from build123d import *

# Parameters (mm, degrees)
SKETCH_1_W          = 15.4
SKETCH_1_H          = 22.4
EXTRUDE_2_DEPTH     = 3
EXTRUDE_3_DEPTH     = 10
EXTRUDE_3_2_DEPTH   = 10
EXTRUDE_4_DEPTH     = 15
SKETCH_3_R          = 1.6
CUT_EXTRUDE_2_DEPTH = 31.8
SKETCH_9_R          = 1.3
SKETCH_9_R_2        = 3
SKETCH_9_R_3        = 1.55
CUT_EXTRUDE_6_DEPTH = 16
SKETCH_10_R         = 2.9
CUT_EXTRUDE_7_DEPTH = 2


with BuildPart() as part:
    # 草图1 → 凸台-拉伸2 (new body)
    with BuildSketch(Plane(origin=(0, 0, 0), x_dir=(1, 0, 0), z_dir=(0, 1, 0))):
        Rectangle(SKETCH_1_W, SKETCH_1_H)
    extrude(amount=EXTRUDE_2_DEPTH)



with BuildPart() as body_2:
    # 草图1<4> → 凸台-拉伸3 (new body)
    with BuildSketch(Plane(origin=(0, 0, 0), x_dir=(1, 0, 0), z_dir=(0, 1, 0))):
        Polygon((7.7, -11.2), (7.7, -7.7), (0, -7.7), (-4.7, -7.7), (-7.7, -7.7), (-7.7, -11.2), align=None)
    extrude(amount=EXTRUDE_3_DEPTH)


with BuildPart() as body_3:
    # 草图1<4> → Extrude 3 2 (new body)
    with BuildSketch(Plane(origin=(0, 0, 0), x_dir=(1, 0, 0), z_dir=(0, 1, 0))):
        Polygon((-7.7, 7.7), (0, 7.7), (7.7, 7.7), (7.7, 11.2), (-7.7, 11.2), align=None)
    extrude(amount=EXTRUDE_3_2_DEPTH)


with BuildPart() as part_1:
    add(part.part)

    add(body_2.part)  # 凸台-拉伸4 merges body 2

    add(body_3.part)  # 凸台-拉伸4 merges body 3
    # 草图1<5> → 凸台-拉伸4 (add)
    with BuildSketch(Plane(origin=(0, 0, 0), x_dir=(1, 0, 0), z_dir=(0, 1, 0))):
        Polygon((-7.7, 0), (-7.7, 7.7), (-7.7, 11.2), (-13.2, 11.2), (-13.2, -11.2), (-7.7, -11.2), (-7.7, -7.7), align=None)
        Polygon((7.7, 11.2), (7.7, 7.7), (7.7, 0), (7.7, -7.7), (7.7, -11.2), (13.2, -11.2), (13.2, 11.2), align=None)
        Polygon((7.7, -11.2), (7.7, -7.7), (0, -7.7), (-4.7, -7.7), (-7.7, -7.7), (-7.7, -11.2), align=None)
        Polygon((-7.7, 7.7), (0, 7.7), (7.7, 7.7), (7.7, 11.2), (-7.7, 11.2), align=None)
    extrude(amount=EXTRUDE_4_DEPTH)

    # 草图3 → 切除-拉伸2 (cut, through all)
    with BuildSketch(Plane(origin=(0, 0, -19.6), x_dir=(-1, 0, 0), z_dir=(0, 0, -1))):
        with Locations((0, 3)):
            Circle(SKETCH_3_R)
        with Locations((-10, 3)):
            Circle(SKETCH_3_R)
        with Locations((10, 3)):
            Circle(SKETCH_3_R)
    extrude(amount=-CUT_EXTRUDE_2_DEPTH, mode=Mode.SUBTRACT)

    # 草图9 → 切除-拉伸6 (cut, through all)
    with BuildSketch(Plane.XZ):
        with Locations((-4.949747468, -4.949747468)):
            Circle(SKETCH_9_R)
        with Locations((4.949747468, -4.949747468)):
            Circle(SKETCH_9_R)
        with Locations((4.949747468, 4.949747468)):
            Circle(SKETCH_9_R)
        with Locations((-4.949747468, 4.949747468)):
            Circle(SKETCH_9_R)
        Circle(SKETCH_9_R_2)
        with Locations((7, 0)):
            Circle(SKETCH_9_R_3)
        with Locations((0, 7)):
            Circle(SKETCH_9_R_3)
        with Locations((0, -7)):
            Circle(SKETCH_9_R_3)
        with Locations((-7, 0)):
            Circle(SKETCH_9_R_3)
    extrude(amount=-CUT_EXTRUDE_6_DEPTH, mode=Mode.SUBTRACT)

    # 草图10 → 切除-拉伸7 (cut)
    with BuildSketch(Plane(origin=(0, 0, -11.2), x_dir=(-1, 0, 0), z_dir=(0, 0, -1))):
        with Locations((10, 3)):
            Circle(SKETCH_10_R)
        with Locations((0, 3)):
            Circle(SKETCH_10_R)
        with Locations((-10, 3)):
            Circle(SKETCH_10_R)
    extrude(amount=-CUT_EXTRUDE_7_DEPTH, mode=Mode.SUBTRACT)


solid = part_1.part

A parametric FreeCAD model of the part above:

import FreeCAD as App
import Part
import Sketcher

doc = App.newDocument("Part")
body = doc.addObject("PartDesign::Body", "Body")

# Sketch on XZ plane
sketch1 = body.newObject("Sketcher::SketchObject", "Sketch")
sketch1.AttachmentSupport = (doc.getObject("XZ_Plane"), [""])
sketch1.MapMode = "FlatFace"
sketch1.addGeometry(Part.LineSegment(App.Vector(-8, -11, 0), App.Vector(-8, 11, 0)), False)
sketch1.addGeometry(Part.LineSegment(App.Vector(-8, 11, 0), App.Vector(8, 11, 0)), False)
sketch1.addGeometry(Part.LineSegment(App.Vector(8, 11, 0), App.Vector(8, -11, 0)), False)
sketch1.addGeometry(Part.LineSegment(App.Vector(8, -11, 0), App.Vector(-8, -11, 0)), False)
sketch1.addConstraint(Sketcher.Constraint("Coincident", 0, 2, 1, 1))
sketch1.addConstraint(Sketcher.Constraint("Coincident", 1, 2, 2, 1))
sketch1.addConstraint(Sketcher.Constraint("Coincident", 2, 2, 3, 1))
sketch1.addConstraint(Sketcher.Constraint("Coincident", 3, 2, 0, 1))
sketch1.addConstraint(Sketcher.Constraint("Vertical", 0))
sketch1.addConstraint(Sketcher.Constraint("Horizontal", 1))
sketch1.addConstraint(Sketcher.Constraint("Vertical", 2))
sketch1.addConstraint(Sketcher.Constraint("Horizontal", 3))
sketch1.addConstraint(Sketcher.Constraint("Symmetric", 0, 2, 2, 2, -1, 1))
sketch1.addConstraint(Sketcher.Constraint("DistanceX", 1, 1, 1, 2, 15.4))
sketch1.addConstraint(Sketcher.Constraint("DistanceY", 0, 1, 0, 2, 22.4))
pad1 = body.newObject("PartDesign::Pad", "Pad")
pad1.Profile = sketch1
pad1.Length = 3
pad1.Reversed = True
body2 = doc.addObject("PartDesign::Body", "Body001")

# Sketch on XZ plane
sketch2 = body2.newObject("Sketcher::SketchObject", "Sketch001")
sketch2.AttachmentSupport = (doc.getObject("XZ_Plane001"), [""])
sketch2.MapMode = "FlatFace"
sketch2.addGeometry(Part.LineSegment(App.Vector(7.7, 11.2, 0), App.Vector(7.7, 7.7, 0)), False)
sketch2.addGeometry(Part.LineSegment(App.Vector(7.7, 7.7, 0), App.Vector(-7.7, 7.7, 0)), False)
sketch2.addGeometry(Part.LineSegment(App.Vector(-7.7, 7.7, 0), App.Vector(-7.7, 11.2, 0)), False)
sketch2.addGeometry(Part.LineSegment(App.Vector(-7.7, 11.2, 0), App.Vector(7.7, 11.2, 0)), False)
sketch2.addConstraint(Sketcher.Constraint("Coincident", 0, 2, 1, 1))
sketch2.addConstraint(Sketcher.Constraint("Coincident", 1, 2, 2, 1))
sketch2.addConstraint(Sketcher.Constraint("Coincident", 2, 2, 3, 1))
sketch2.addConstraint(Sketcher.Constraint("Coincident", 3, 2, 0, 1))
sketch2.addConstraint(Sketcher.Constraint("Vertical", 0))
sketch2.addConstraint(Sketcher.Constraint("Horizontal", 1))
sketch2.addConstraint(Sketcher.Constraint("Vertical", 2))
sketch2.addConstraint(Sketcher.Constraint("Horizontal", 3))
sketch2.addConstraint(Sketcher.Constraint("DistanceX", 1, 2, 1, 1, 15.4))
sketch2.addConstraint(Sketcher.Constraint("DistanceY", 0, 2, 0, 1, 3.5))
sketch2.addConstraint(Sketcher.Constraint("DistanceX", -1, 1, 0, 2, 7.7))
sketch2.addConstraint(Sketcher.Constraint("DistanceY", -1, 1, 0, 2, 7.7))
pad2 = body2.newObject("PartDesign::Pad", "Pad001")
pad2.Profile = sketch2
pad2.Length = 10
pad2.Reversed = True
body3 = doc.addObject("PartDesign::Body", "Body002")

# Sketch on XZ plane
sketch3 = body3.newObject("Sketcher::SketchObject", "Sketch002")
sketch3.AttachmentSupport = (doc.getObject("XZ_Plane002"), [""])
sketch3.MapMode = "FlatFace"
sketch3.addGeometry(Part.LineSegment(App.Vector(-7.7, -7.7, 0), App.Vector(7.7, -7.7, 0)), False)
sketch3.addGeometry(Part.LineSegment(App.Vector(7.7, -7.7, 0), App.Vector(7.7, -11.2, 0)), False)
sketch3.addGeometry(Part.LineSegment(App.Vector(7.7, -11.2, 0), App.Vector(-7.7, -11.2, 0)), False)
sketch3.addGeometry(Part.LineSegment(App.Vector(-7.7, -11.2, 0), App.Vector(-7.7, -7.7, 0)), False)
sketch3.addConstraint(Sketcher.Constraint("Coincident", 0, 2, 1, 1))
sketch3.addConstraint(Sketcher.Constraint("Coincident", 1, 2, 2, 1))
sketch3.addConstraint(Sketcher.Constraint("Coincident", 2, 2, 3, 1))
sketch3.addConstraint(Sketcher.Constraint("Coincident", 3, 2, 0, 1))
sketch3.addConstraint(Sketcher.Constraint("Horizontal", 0))
sketch3.addConstraint(Sketcher.Constraint("Vertical", 1))
sketch3.addConstraint(Sketcher.Constraint("Horizontal", 2))
sketch3.addConstraint(Sketcher.Constraint("Vertical", 3))
sketch3.addConstraint(Sketcher.Constraint("DistanceX", 0, 1, 0, 2, 15.4))
sketch3.addConstraint(Sketcher.Constraint("DistanceY", 1, 2, 1, 1, 3.5))
sketch3.addConstraint(Sketcher.Constraint("DistanceX", -1, 1, 0, 2, 7.7))
sketch3.addConstraint(Sketcher.Constraint("DistanceY", 0, 2, -1, 1, 7.7))
pad3 = body3.newObject("PartDesign::Pad", "Pad002")
pad3.Profile = sketch3
pad3.Length = 10
pad3.Reversed = True
doc.recompute()

boolean = body.newObject("PartDesign::Boolean", "Boolean")
boolean.Type = "Fuse"
boolean.addObjects([body2])
doc.recompute()

boolean2 = body.newObject("PartDesign::Boolean", "Boolean001")
boolean2.Type = "Fuse"
boolean2.addObjects([body3])

# Sketch on XZ plane
sketch4 = body.newObject("Sketcher::SketchObject", "Sketch003")
sketch4.AttachmentSupport = (doc.getObject("XZ_Plane"), [""])
sketch4.MapMode = "FlatFace"
sketch4.addGeometry(Part.LineSegment(App.Vector(13, -11, 0), App.Vector(-13, -11, 0)), False)
sketch4.addGeometry(Part.LineSegment(App.Vector(-13, -11, 0), App.Vector(-13, 11, 0)), False)
sketch4.addGeometry(Part.LineSegment(App.Vector(-13, 11, 0), App.Vector(13, 11, 0)), False)
sketch4.addGeometry(Part.LineSegment(App.Vector(13, 11, 0), App.Vector(13, -11, 0)), False)
sketch4.addGeometry(Part.LineSegment(App.Vector(8, 8, 0), App.Vector(-8, 8, 0)), False)
sketch4.addGeometry(Part.LineSegment(App.Vector(-8, 8, 0), App.Vector(-8, -8, 0)), False)
sketch4.addGeometry(Part.LineSegment(App.Vector(-8, -8, 0), App.Vector(8, -8, 0)), False)
sketch4.addGeometry(Part.LineSegment(App.Vector(8, -8, 0), App.Vector(8, 8, 0)), False)
sketch4.addConstraint(Sketcher.Constraint("Coincident", 0, 2, 1, 1))
sketch4.addConstraint(Sketcher.Constraint("Coincident", 1, 2, 2, 1))
sketch4.addConstraint(Sketcher.Constraint("Coincident", 2, 2, 3, 1))
sketch4.addConstraint(Sketcher.Constraint("Coincident", 3, 2, 0, 1))
sketch4.addConstraint(Sketcher.Constraint("Coincident", 4, 2, 5, 1))
sketch4.addConstraint(Sketcher.Constraint("Coincident", 5, 2, 6, 1))
sketch4.addConstraint(Sketcher.Constraint("Coincident", 6, 2, 7, 1))
sketch4.addConstraint(Sketcher.Constraint("Coincident", 7, 2, 4, 1))
sketch4.addConstraint(Sketcher.Constraint("Horizontal", 0))
sketch4.addConstraint(Sketcher.Constraint("Vertical", 1))
sketch4.addConstraint(Sketcher.Constraint("Horizontal", 2))
sketch4.addConstraint(Sketcher.Constraint("Vertical", 3))
sketch4.addConstraint(Sketcher.Constraint("Horizontal", 4))
sketch4.addConstraint(Sketcher.Constraint("Vertical", 5))
sketch4.addConstraint(Sketcher.Constraint("Horizontal", 6))
sketch4.addConstraint(Sketcher.Constraint("Vertical", 7))
sketch4.addConstraint(Sketcher.Constraint("Symmetric", 0, 2, 2, 2, -1, 1))
sketch4.addConstraint(Sketcher.Constraint("Symmetric", 4, 2, 6, 2, -1, 1))
sketch4.addConstraint(Sketcher.Constraint("Equal", 6, 5))
sketch4.addConstraint(Sketcher.Constraint("DistanceX", 0, 2, 0, 1, 26.4))
sketch4.addConstraint(Sketcher.Constraint("DistanceX", 4, 2, 4, 1, 15.4))
sketch4.addConstraint(Sketcher.Constraint("DistanceY", 1, 1, 1, 2, 22.4))
pad4 = body.newObject("PartDesign::Pad", "Pad003")
pad4.Profile = sketch4
pad4.Length = 15
pad4.Reversed = True

# Sketch on XY plane
sketch5 = body.newObject("Sketcher::SketchObject", "Sketch004")
sketch5.AttachmentSupport = (doc.getObject("XY_Plane"), [""])
sketch5.MapMode = "FlatFace"
sketch5.AttachmentOffset = App.Placement(App.Vector(0, 0, -19.6), App.Rotation())
sketch5.addGeometry(Part.Circle(App.Vector(0, 3, 0), App.Vector(0, 0, 1), 1.6), False)
sketch5.addGeometry(Part.Circle(App.Vector(10, 3, 0), App.Vector(0, 0, 1), 1.6), False)
sketch5.addGeometry(Part.Circle(App.Vector(-10, 3, 0), App.Vector(0, 0, 1), 1.6), False)
sketch5.addConstraint(Sketcher.Constraint("Equal", 0, 1))
sketch5.addConstraint(Sketcher.Constraint("Equal", 1, 2))
sketch5.addConstraint(Sketcher.Constraint("Symmetric", 1, 3, 2, 3, -2))
sketch5.addConstraint(Sketcher.Constraint("PointOnObject", 0, 3, -2))
sketch5.addConstraint(Sketcher.Constraint("Horizontal", 0, 3, 1, 3))
sketch5.addConstraint(Sketcher.Constraint("Diameter", 0, 3.2))
sketch5.addConstraint(Sketcher.Constraint("DistanceY", -1, 1, 0, 3, 3.0))
sketch5.addConstraint(Sketcher.Constraint("DistanceX", -1, 1, 1, 3, 10.0))
pocket1 = body.newObject("PartDesign::Pocket", "Pocket")
pocket1.Profile = sketch5
pocket1.Type = "ThroughAll"
pocket1.Reversed = True

# Sketch on XZ plane
sketch6 = body.newObject("Sketcher::SketchObject", "Sketch005")
sketch6.AttachmentSupport = (doc.getObject("XZ_Plane"), [""])
sketch6.MapMode = "FlatFace"
sketch6.addGeometry(Part.Circle(App.Vector(-4.9, -4.9, 0), App.Vector(0, 0, 1), 1.3), False)
sketch6.addGeometry(Part.Circle(App.Vector(4.9, -4.9, 0), App.Vector(0, 0, 1), 1.3), False)
sketch6.addGeometry(Part.Circle(App.Vector(4.9, 4.9, 0), App.Vector(0, 0, 1), 1.3), False)
sketch6.addGeometry(Part.Circle(App.Vector(-4.9, 4.9, 0), App.Vector(0, 0, 1), 1.3), False)
sketch6.addGeometry(Part.Circle(App.Vector(0, 0, 0), App.Vector(0, 0, 1), 3), False)
sketch6.addGeometry(Part.Circle(App.Vector(7, 0, 0), App.Vector(0, 0, 1), 1.6), False)
sketch6.addGeometry(Part.Circle(App.Vector(0, 7, 0), App.Vector(0, 0, 1), 1.6), False)
sketch6.addGeometry(Part.Circle(App.Vector(0, -7, 0), App.Vector(0, 0, 1), 1.6), False)
sketch6.addGeometry(Part.Circle(App.Vector(-7, 0, 0), App.Vector(0, 0, 1), 1.6), False)
sketch6.addConstraint(Sketcher.Constraint("Coincident", 4, 3, -1, 1))
sketch6.addConstraint(Sketcher.Constraint("Equal", 0, 1))
sketch6.addConstraint(Sketcher.Constraint("Equal", 1, 2))
sketch6.addConstraint(Sketcher.Constraint("Equal", 2, 3))
sketch6.addConstraint(Sketcher.Constraint("Equal", 5, 6))
sketch6.addConstraint(Sketcher.Constraint("Equal", 6, 7))
sketch6.addConstraint(Sketcher.Constraint("Equal", 7, 8))
sketch6.addConstraint(Sketcher.Constraint("Symmetric", 0, 3, 2, 3, -1, 1))
sketch6.addConstraint(Sketcher.Constraint("Symmetric", 1, 3, 3, 3, -1, 1))
sketch6.addConstraint(Sketcher.Constraint("Symmetric", 6, 3, 7, 3, -1, 1))
sketch6.addConstraint(Sketcher.Constraint("Symmetric", 5, 3, 8, 3, -1, 1))
sketch6.addConstraint(Sketcher.Constraint("Symmetric", 0, 3, 1, 3, -2))
sketch6.addConstraint(Sketcher.Constraint("PointOnObject", 5, 3, -1))
sketch6.addConstraint(Sketcher.Constraint("PointOnObject", 6, 3, -2))
sketch6.addConstraint(Sketcher.Constraint("Diameter", 4, 6.0))
sketch6.addConstraint(Sketcher.Constraint("Diameter", 0, 2.6))
sketch6.addConstraint(Sketcher.Constraint("Diameter", 5, 3.1))
sketch6.addConstraint(Sketcher.Constraint("DistanceX", -1, 1, 5, 3, 7.0))
sketch6.addConstraint(Sketcher.Constraint("DistanceY", -1, 1, 6, 3, 7.0))
sketch6.addConstraint(Sketcher.Constraint("DistanceX", 0, 3, -1, 1, 4.949747))
sketch6.addConstraint(Sketcher.Constraint("DistanceY", 0, 3, -1, 1, 4.949747))
pocket2 = body.newObject("PartDesign::Pocket", "Pocket001")
pocket2.Profile = sketch6
pocket2.Type = "ThroughAll"

# Sketch on XY plane
sketch7 = body.newObject("Sketcher::SketchObject", "Sketch006")
sketch7.AttachmentSupport = (doc.getObject("XY_Plane"), [""])
sketch7.MapMode = "FlatFace"
sketch7.AttachmentOffset = App.Placement(App.Vector(0, 0, -11.2), App.Rotation())
sketch7.addGeometry(Part.Circle(App.Vector(-10, 3, 0), App.Vector(0, 0, 1), 2.9), False)
sketch7.addGeometry(Part.Circle(App.Vector(0, 3, 0), App.Vector(0, 0, 1), 2.9), False)
sketch7.addGeometry(Part.Circle(App.Vector(10, 3, 0), App.Vector(0, 0, 1), 2.9), False)
sketch7.addConstraint(Sketcher.Constraint("Equal", 0, 1))
sketch7.addConstraint(Sketcher.Constraint("Equal", 1, 2))
sketch7.addConstraint(Sketcher.Constraint("Symmetric", 0, 3, 2, 3, -2))
sketch7.addConstraint(Sketcher.Constraint("PointOnObject", 1, 3, -2))
sketch7.addConstraint(Sketcher.Constraint("Horizontal", 0, 3, 1, 3))
sketch7.addConstraint(Sketcher.Constraint("Diameter", 0, 5.8))
sketch7.addConstraint(Sketcher.Constraint("DistanceX", 0, 3, -1, 1, 10.0))
sketch7.addConstraint(Sketcher.Constraint("DistanceY", -1, 1, 0, 3, 3.0))
pocket3 = body.newObject("PartDesign::Pocket", "Pocket002")
pocket3.Profile = sketch7
pocket3.Length = 2
pocket3.Reversed = True

doc.recompute()
